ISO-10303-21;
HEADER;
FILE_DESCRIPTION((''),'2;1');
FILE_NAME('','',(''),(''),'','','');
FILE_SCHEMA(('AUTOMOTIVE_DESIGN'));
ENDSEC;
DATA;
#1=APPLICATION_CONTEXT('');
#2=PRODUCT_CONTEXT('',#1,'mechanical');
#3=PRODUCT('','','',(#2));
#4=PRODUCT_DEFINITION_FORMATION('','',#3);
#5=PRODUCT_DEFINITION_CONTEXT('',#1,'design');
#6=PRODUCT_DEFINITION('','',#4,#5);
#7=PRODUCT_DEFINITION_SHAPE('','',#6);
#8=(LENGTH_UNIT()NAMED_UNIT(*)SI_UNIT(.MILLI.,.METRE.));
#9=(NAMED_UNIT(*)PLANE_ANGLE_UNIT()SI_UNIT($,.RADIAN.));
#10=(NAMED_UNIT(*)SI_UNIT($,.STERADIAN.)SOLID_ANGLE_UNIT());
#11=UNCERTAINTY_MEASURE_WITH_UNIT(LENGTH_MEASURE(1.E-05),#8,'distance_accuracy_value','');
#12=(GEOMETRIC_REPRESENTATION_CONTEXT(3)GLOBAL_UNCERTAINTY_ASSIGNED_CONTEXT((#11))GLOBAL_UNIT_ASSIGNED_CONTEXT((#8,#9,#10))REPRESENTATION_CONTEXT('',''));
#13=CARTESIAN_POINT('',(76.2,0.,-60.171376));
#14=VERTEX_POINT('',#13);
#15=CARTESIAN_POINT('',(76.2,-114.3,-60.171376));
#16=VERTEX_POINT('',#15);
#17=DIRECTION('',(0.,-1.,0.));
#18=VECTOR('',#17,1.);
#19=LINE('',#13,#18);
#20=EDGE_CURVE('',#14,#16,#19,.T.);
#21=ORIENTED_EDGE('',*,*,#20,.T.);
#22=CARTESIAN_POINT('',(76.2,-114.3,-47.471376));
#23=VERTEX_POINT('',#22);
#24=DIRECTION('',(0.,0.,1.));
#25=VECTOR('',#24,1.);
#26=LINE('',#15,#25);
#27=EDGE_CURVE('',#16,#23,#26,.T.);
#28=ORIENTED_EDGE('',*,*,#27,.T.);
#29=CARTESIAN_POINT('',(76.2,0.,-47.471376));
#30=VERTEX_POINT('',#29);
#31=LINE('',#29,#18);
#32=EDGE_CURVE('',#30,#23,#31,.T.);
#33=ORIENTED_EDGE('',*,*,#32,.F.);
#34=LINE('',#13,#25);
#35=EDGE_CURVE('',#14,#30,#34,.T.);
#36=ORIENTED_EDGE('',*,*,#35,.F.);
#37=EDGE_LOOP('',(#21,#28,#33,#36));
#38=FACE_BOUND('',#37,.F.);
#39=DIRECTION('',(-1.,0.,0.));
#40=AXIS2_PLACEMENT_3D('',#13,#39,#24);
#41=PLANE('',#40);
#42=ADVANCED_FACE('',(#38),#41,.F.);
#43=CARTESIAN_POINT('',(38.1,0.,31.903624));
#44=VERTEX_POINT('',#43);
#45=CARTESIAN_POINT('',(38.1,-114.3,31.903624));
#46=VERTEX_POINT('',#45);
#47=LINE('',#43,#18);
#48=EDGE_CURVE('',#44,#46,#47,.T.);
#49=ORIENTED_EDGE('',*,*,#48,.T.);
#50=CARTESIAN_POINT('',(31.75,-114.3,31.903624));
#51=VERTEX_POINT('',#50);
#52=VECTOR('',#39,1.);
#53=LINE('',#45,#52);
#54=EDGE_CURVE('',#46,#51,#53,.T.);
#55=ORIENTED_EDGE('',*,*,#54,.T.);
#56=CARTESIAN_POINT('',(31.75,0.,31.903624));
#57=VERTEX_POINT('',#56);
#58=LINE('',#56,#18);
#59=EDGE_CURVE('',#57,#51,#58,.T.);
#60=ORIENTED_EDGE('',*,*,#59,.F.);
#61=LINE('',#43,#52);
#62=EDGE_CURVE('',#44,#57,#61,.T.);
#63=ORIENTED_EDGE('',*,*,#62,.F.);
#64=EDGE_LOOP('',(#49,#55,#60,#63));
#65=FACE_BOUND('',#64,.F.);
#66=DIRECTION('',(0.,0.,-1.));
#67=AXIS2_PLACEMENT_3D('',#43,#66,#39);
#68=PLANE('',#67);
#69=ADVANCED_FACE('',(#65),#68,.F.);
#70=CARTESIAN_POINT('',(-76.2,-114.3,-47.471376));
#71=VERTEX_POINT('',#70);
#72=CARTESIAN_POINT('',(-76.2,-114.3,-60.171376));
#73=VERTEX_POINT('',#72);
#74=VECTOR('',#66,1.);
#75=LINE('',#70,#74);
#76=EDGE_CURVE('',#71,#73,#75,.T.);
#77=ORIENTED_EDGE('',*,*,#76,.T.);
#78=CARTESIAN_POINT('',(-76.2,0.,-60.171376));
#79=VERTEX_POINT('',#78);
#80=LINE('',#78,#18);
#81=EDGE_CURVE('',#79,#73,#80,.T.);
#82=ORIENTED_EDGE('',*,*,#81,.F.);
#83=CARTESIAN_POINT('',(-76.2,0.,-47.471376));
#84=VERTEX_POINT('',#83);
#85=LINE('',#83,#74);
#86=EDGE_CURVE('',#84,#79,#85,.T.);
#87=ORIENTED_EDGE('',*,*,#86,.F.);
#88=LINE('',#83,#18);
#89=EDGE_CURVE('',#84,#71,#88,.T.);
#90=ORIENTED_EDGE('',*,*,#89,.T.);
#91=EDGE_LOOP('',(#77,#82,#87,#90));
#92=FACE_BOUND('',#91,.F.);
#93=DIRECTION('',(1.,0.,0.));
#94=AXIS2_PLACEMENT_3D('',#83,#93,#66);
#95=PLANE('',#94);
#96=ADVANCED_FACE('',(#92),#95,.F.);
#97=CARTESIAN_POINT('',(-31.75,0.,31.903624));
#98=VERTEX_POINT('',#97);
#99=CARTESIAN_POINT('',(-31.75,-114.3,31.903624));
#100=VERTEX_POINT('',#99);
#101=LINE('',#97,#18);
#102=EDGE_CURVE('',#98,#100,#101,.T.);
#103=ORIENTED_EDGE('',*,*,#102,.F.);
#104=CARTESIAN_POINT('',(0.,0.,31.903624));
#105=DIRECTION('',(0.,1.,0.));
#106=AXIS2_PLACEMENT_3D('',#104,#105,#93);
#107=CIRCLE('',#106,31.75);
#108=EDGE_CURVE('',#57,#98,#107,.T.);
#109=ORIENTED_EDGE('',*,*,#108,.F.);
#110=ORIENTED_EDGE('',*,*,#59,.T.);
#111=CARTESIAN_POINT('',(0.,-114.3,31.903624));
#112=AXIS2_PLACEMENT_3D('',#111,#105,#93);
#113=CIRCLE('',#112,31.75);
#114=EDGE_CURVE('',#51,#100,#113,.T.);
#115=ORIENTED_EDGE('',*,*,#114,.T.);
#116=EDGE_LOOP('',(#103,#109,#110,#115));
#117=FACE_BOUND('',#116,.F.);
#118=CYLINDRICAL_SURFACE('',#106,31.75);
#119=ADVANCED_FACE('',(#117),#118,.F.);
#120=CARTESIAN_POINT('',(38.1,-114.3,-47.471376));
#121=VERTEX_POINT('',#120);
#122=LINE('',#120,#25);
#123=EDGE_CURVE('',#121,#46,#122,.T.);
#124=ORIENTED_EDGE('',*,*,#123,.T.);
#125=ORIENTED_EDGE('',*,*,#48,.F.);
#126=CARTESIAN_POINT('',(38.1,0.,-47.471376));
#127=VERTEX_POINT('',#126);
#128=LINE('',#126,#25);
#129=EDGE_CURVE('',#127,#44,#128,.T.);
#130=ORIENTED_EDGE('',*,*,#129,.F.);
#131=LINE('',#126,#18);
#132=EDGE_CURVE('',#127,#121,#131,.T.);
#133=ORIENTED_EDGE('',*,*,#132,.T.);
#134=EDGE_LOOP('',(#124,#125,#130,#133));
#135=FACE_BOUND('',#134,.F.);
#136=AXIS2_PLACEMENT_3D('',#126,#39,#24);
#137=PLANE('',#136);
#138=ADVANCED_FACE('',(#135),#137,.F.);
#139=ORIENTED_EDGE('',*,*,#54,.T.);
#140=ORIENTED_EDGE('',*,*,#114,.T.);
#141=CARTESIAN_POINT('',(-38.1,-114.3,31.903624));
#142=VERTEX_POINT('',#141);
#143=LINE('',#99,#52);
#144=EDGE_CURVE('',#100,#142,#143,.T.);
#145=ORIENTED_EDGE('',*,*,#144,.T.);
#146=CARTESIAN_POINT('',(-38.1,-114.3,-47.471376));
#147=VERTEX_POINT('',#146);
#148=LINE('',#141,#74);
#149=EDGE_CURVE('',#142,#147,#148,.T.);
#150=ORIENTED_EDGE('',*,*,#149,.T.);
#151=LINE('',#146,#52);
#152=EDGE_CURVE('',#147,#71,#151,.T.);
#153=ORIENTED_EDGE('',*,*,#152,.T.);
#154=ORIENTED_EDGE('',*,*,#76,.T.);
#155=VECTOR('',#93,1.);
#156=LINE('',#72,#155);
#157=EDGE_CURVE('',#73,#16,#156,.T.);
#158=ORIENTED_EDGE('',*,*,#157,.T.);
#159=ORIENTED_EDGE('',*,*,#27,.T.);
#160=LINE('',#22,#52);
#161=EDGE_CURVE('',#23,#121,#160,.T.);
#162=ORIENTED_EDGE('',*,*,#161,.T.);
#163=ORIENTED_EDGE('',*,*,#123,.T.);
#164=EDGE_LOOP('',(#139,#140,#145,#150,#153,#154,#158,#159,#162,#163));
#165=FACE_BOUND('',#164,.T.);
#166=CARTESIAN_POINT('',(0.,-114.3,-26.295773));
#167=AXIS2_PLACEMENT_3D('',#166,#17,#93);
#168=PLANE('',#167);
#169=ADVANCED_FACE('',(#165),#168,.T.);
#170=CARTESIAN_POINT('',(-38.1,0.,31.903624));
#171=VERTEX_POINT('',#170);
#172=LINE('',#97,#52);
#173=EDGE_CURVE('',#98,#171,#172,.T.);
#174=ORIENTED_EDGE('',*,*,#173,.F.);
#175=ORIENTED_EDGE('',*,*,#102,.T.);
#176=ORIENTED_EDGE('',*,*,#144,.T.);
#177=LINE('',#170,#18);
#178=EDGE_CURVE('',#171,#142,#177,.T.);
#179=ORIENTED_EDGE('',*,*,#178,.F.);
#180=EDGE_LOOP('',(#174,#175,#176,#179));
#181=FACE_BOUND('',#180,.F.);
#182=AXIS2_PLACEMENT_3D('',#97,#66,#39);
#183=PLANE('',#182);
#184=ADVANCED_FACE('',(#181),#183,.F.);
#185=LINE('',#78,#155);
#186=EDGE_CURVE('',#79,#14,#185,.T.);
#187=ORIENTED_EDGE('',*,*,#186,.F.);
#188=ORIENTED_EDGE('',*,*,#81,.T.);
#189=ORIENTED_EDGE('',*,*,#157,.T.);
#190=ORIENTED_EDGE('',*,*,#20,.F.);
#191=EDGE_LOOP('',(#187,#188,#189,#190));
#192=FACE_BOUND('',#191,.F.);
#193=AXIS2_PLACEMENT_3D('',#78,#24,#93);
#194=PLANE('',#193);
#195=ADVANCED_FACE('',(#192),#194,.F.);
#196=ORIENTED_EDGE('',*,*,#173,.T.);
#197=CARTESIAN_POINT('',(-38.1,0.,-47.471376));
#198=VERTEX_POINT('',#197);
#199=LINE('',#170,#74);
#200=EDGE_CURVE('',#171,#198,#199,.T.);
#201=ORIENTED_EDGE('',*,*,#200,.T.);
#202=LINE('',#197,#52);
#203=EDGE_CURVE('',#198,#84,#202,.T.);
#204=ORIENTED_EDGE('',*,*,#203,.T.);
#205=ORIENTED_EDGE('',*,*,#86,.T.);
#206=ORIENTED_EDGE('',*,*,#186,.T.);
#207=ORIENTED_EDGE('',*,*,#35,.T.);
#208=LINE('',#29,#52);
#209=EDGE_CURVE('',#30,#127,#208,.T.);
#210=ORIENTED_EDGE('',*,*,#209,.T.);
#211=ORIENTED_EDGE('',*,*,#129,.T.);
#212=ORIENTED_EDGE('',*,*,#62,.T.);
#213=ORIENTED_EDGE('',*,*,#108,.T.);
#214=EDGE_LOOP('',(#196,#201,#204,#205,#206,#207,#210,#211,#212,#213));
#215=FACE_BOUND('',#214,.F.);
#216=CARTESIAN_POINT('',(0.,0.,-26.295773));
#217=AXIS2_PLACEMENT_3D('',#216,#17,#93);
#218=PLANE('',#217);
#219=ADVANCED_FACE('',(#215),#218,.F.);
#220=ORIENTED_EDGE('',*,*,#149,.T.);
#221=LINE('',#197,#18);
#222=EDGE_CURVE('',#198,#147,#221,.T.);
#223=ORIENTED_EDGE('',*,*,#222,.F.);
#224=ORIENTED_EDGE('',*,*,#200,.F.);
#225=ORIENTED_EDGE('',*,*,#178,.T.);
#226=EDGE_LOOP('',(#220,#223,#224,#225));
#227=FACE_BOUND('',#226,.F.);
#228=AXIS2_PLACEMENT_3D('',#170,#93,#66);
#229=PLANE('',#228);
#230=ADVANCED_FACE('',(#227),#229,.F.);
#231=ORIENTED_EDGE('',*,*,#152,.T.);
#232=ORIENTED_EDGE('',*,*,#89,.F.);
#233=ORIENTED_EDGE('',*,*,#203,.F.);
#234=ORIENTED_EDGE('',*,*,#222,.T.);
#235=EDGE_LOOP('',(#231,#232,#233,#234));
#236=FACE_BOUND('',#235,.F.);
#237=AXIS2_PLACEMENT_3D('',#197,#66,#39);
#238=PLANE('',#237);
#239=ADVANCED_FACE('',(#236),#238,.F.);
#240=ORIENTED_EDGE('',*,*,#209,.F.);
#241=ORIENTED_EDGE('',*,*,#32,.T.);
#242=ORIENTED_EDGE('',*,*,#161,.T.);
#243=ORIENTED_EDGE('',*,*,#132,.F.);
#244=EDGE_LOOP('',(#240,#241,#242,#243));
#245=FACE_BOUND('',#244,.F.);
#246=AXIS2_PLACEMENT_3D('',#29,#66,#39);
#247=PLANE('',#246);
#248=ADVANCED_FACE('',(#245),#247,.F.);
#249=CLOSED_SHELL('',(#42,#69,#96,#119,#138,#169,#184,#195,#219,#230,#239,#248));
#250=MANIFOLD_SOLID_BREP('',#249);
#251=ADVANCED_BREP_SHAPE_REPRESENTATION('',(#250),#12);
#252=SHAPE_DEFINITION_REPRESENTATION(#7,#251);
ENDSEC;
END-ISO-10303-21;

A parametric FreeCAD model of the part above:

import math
import FreeCAD as App
import Part
import Sketcher
from FreeCAD import Vector
Q = App.Units.Quantity

doc = App.newDocument("Part")
body = doc.addObject("PartDesign::Body", "Body")

# Sketch on XZ plane
sketch1 = body.newObject("Sketcher::SketchObject", "Sketch")
sketch1.AttachmentSupport = (doc.getObject("XZ_Plane"), [""])
sketch1.MapMode = "FlatFace"
sketch1.addGeometry(Part.LineSegment(Vector(38, -47, 0), Vector(38, 32, 0)), False)
sketch1.addGeometry(Part.LineSegment(Vector(38, 32, 0), Vector(32, 32, 0)), False)
sketch1.addGeometry(Part.ArcOfCircle(Part.Circle(Vector(0, 32, 0), Vector(0, 0, 1), 32), math.radians(180), math.radians(360)), False)
sketch1.addGeometry(Part.LineSegment(Vector(-32, 32, 0), Vector(-38, 32, 0)), False)
sketch1.addGeometry(Part.LineSegment(Vector(-38, 32, 0), Vector(-38, -47, 0)), False)
sketch1.addGeometry(Part.LineSegment(Vector(-38, -47, 0), Vector(-76, -47, 0)), False)
sketch1.addGeometry(Part.LineSegment(Vector(-76, -47, 0), Vector(-76, -60, 0)), False)
sketch1.addGeometry(Part.LineSegment(Vector(-76, -60, 0), Vector(76, -60, 0)), False)
sketch1.addGeometry(Part.LineSegment(Vector(76, -60, 0), Vector(76, -47, 0)), False)
sketch1.addGeometry(Part.LineSegment(Vector(76, -47, 0), Vector(38, -47, 0)), False)
sketch1.addConstraint(Sketcher.Constraint("Coincident", 0, 2, 1, 1))
sketch1.addConstraint(Sketcher.Constraint("Coincident", 1, 2, 2, 2))
sketch1.addConstraint(Sketcher.Constraint("Coincident", 2, 1, 3, 1))
sketch1.addConstraint(Sketcher.Constraint("Coincident", 3, 2, 4, 1))
sketch1.addConstraint(Sketcher.Constraint("Coincident", 4, 2, 5, 1))
sketch1.addConstraint(Sketcher.Constraint("Coincident", 5, 2, 6, 1))
sketch1.addConstraint(Sketcher.Constraint("Coincident", 6, 2, 7, 1))
sketch1.addConstraint(Sketcher.Constraint("Coincident", 7, 2, 8, 1))
sketch1.addConstraint(Sketcher.Constraint("Coincident", 8, 2, 9, 1))
sketch1.addConstraint(Sketcher.Constraint("Coincident", 9, 2, 0, 1))
sketch1.addConstraint(Sketcher.Constraint("Vertical", 0))
sketch1.addConstraint(Sketcher.Constraint("Horizontal", 1))
sketch1.addConstraint(Sketcher.Constraint("Horizontal", 3))
sketch1.addConstraint(Sketcher.Constraint("Vertical", 4))
sketch1.addConstraint(Sketcher.Constraint("Horizontal", 5))
sketch1.addConstraint(Sketcher.Constraint("Vertical", 6))
sketch1.addConstraint(Sketcher.Constraint("Horizontal", 7))
sketch1.addConstraint(Sketcher.Constraint("Vertical", 8))
sketch1.addConstraint(Sketcher.Constraint("Horizontal", 9))
sketch1.addConstraint(Sketcher.Constraint("Symmetric", 1, 2, 2, 1, -2))
sketch1.addConstraint(Sketcher.Constraint("Symmetric", 5, 2, 8, 2, -2))
sketch1.addConstraint(Sketcher.Constraint("Horizontal", 2, 3, 0, 2))
sketch1.addConstraint(Sketcher.Constraint("Equal", 1, 3))
sketch1.addConstraint(Sketcher.Constraint("DistanceX", 7, 1, 7, 2, Q("6 in")))
sketch1.addConstraint(Sketcher.Constraint("Radius", 2, Q("1.25 in")))
sketch1.addConstraint(Sketcher.Constraint("DistanceX", 5, 2, 5, 1, Q("1.5 in")))
sketch1.addConstraint(Sketcher.Constraint("DistanceY", 6, 2, 6, 1, Q("0.5 in")))
sketch1.addConstraint(Sketcher.Constraint("DistanceY", 0, 1, 0, 2, Q("3.125 in")))
sketch1.addConstraint(Sketcher.Constraint("DistanceY", -1, 1, 2, 3, 31.903624))
pad1 = body.newObject("PartDesign::Pad", "Pad")
pad1.Profile = sketch1
pad1.Length = Q("4.5 in")

doc.recompute()
